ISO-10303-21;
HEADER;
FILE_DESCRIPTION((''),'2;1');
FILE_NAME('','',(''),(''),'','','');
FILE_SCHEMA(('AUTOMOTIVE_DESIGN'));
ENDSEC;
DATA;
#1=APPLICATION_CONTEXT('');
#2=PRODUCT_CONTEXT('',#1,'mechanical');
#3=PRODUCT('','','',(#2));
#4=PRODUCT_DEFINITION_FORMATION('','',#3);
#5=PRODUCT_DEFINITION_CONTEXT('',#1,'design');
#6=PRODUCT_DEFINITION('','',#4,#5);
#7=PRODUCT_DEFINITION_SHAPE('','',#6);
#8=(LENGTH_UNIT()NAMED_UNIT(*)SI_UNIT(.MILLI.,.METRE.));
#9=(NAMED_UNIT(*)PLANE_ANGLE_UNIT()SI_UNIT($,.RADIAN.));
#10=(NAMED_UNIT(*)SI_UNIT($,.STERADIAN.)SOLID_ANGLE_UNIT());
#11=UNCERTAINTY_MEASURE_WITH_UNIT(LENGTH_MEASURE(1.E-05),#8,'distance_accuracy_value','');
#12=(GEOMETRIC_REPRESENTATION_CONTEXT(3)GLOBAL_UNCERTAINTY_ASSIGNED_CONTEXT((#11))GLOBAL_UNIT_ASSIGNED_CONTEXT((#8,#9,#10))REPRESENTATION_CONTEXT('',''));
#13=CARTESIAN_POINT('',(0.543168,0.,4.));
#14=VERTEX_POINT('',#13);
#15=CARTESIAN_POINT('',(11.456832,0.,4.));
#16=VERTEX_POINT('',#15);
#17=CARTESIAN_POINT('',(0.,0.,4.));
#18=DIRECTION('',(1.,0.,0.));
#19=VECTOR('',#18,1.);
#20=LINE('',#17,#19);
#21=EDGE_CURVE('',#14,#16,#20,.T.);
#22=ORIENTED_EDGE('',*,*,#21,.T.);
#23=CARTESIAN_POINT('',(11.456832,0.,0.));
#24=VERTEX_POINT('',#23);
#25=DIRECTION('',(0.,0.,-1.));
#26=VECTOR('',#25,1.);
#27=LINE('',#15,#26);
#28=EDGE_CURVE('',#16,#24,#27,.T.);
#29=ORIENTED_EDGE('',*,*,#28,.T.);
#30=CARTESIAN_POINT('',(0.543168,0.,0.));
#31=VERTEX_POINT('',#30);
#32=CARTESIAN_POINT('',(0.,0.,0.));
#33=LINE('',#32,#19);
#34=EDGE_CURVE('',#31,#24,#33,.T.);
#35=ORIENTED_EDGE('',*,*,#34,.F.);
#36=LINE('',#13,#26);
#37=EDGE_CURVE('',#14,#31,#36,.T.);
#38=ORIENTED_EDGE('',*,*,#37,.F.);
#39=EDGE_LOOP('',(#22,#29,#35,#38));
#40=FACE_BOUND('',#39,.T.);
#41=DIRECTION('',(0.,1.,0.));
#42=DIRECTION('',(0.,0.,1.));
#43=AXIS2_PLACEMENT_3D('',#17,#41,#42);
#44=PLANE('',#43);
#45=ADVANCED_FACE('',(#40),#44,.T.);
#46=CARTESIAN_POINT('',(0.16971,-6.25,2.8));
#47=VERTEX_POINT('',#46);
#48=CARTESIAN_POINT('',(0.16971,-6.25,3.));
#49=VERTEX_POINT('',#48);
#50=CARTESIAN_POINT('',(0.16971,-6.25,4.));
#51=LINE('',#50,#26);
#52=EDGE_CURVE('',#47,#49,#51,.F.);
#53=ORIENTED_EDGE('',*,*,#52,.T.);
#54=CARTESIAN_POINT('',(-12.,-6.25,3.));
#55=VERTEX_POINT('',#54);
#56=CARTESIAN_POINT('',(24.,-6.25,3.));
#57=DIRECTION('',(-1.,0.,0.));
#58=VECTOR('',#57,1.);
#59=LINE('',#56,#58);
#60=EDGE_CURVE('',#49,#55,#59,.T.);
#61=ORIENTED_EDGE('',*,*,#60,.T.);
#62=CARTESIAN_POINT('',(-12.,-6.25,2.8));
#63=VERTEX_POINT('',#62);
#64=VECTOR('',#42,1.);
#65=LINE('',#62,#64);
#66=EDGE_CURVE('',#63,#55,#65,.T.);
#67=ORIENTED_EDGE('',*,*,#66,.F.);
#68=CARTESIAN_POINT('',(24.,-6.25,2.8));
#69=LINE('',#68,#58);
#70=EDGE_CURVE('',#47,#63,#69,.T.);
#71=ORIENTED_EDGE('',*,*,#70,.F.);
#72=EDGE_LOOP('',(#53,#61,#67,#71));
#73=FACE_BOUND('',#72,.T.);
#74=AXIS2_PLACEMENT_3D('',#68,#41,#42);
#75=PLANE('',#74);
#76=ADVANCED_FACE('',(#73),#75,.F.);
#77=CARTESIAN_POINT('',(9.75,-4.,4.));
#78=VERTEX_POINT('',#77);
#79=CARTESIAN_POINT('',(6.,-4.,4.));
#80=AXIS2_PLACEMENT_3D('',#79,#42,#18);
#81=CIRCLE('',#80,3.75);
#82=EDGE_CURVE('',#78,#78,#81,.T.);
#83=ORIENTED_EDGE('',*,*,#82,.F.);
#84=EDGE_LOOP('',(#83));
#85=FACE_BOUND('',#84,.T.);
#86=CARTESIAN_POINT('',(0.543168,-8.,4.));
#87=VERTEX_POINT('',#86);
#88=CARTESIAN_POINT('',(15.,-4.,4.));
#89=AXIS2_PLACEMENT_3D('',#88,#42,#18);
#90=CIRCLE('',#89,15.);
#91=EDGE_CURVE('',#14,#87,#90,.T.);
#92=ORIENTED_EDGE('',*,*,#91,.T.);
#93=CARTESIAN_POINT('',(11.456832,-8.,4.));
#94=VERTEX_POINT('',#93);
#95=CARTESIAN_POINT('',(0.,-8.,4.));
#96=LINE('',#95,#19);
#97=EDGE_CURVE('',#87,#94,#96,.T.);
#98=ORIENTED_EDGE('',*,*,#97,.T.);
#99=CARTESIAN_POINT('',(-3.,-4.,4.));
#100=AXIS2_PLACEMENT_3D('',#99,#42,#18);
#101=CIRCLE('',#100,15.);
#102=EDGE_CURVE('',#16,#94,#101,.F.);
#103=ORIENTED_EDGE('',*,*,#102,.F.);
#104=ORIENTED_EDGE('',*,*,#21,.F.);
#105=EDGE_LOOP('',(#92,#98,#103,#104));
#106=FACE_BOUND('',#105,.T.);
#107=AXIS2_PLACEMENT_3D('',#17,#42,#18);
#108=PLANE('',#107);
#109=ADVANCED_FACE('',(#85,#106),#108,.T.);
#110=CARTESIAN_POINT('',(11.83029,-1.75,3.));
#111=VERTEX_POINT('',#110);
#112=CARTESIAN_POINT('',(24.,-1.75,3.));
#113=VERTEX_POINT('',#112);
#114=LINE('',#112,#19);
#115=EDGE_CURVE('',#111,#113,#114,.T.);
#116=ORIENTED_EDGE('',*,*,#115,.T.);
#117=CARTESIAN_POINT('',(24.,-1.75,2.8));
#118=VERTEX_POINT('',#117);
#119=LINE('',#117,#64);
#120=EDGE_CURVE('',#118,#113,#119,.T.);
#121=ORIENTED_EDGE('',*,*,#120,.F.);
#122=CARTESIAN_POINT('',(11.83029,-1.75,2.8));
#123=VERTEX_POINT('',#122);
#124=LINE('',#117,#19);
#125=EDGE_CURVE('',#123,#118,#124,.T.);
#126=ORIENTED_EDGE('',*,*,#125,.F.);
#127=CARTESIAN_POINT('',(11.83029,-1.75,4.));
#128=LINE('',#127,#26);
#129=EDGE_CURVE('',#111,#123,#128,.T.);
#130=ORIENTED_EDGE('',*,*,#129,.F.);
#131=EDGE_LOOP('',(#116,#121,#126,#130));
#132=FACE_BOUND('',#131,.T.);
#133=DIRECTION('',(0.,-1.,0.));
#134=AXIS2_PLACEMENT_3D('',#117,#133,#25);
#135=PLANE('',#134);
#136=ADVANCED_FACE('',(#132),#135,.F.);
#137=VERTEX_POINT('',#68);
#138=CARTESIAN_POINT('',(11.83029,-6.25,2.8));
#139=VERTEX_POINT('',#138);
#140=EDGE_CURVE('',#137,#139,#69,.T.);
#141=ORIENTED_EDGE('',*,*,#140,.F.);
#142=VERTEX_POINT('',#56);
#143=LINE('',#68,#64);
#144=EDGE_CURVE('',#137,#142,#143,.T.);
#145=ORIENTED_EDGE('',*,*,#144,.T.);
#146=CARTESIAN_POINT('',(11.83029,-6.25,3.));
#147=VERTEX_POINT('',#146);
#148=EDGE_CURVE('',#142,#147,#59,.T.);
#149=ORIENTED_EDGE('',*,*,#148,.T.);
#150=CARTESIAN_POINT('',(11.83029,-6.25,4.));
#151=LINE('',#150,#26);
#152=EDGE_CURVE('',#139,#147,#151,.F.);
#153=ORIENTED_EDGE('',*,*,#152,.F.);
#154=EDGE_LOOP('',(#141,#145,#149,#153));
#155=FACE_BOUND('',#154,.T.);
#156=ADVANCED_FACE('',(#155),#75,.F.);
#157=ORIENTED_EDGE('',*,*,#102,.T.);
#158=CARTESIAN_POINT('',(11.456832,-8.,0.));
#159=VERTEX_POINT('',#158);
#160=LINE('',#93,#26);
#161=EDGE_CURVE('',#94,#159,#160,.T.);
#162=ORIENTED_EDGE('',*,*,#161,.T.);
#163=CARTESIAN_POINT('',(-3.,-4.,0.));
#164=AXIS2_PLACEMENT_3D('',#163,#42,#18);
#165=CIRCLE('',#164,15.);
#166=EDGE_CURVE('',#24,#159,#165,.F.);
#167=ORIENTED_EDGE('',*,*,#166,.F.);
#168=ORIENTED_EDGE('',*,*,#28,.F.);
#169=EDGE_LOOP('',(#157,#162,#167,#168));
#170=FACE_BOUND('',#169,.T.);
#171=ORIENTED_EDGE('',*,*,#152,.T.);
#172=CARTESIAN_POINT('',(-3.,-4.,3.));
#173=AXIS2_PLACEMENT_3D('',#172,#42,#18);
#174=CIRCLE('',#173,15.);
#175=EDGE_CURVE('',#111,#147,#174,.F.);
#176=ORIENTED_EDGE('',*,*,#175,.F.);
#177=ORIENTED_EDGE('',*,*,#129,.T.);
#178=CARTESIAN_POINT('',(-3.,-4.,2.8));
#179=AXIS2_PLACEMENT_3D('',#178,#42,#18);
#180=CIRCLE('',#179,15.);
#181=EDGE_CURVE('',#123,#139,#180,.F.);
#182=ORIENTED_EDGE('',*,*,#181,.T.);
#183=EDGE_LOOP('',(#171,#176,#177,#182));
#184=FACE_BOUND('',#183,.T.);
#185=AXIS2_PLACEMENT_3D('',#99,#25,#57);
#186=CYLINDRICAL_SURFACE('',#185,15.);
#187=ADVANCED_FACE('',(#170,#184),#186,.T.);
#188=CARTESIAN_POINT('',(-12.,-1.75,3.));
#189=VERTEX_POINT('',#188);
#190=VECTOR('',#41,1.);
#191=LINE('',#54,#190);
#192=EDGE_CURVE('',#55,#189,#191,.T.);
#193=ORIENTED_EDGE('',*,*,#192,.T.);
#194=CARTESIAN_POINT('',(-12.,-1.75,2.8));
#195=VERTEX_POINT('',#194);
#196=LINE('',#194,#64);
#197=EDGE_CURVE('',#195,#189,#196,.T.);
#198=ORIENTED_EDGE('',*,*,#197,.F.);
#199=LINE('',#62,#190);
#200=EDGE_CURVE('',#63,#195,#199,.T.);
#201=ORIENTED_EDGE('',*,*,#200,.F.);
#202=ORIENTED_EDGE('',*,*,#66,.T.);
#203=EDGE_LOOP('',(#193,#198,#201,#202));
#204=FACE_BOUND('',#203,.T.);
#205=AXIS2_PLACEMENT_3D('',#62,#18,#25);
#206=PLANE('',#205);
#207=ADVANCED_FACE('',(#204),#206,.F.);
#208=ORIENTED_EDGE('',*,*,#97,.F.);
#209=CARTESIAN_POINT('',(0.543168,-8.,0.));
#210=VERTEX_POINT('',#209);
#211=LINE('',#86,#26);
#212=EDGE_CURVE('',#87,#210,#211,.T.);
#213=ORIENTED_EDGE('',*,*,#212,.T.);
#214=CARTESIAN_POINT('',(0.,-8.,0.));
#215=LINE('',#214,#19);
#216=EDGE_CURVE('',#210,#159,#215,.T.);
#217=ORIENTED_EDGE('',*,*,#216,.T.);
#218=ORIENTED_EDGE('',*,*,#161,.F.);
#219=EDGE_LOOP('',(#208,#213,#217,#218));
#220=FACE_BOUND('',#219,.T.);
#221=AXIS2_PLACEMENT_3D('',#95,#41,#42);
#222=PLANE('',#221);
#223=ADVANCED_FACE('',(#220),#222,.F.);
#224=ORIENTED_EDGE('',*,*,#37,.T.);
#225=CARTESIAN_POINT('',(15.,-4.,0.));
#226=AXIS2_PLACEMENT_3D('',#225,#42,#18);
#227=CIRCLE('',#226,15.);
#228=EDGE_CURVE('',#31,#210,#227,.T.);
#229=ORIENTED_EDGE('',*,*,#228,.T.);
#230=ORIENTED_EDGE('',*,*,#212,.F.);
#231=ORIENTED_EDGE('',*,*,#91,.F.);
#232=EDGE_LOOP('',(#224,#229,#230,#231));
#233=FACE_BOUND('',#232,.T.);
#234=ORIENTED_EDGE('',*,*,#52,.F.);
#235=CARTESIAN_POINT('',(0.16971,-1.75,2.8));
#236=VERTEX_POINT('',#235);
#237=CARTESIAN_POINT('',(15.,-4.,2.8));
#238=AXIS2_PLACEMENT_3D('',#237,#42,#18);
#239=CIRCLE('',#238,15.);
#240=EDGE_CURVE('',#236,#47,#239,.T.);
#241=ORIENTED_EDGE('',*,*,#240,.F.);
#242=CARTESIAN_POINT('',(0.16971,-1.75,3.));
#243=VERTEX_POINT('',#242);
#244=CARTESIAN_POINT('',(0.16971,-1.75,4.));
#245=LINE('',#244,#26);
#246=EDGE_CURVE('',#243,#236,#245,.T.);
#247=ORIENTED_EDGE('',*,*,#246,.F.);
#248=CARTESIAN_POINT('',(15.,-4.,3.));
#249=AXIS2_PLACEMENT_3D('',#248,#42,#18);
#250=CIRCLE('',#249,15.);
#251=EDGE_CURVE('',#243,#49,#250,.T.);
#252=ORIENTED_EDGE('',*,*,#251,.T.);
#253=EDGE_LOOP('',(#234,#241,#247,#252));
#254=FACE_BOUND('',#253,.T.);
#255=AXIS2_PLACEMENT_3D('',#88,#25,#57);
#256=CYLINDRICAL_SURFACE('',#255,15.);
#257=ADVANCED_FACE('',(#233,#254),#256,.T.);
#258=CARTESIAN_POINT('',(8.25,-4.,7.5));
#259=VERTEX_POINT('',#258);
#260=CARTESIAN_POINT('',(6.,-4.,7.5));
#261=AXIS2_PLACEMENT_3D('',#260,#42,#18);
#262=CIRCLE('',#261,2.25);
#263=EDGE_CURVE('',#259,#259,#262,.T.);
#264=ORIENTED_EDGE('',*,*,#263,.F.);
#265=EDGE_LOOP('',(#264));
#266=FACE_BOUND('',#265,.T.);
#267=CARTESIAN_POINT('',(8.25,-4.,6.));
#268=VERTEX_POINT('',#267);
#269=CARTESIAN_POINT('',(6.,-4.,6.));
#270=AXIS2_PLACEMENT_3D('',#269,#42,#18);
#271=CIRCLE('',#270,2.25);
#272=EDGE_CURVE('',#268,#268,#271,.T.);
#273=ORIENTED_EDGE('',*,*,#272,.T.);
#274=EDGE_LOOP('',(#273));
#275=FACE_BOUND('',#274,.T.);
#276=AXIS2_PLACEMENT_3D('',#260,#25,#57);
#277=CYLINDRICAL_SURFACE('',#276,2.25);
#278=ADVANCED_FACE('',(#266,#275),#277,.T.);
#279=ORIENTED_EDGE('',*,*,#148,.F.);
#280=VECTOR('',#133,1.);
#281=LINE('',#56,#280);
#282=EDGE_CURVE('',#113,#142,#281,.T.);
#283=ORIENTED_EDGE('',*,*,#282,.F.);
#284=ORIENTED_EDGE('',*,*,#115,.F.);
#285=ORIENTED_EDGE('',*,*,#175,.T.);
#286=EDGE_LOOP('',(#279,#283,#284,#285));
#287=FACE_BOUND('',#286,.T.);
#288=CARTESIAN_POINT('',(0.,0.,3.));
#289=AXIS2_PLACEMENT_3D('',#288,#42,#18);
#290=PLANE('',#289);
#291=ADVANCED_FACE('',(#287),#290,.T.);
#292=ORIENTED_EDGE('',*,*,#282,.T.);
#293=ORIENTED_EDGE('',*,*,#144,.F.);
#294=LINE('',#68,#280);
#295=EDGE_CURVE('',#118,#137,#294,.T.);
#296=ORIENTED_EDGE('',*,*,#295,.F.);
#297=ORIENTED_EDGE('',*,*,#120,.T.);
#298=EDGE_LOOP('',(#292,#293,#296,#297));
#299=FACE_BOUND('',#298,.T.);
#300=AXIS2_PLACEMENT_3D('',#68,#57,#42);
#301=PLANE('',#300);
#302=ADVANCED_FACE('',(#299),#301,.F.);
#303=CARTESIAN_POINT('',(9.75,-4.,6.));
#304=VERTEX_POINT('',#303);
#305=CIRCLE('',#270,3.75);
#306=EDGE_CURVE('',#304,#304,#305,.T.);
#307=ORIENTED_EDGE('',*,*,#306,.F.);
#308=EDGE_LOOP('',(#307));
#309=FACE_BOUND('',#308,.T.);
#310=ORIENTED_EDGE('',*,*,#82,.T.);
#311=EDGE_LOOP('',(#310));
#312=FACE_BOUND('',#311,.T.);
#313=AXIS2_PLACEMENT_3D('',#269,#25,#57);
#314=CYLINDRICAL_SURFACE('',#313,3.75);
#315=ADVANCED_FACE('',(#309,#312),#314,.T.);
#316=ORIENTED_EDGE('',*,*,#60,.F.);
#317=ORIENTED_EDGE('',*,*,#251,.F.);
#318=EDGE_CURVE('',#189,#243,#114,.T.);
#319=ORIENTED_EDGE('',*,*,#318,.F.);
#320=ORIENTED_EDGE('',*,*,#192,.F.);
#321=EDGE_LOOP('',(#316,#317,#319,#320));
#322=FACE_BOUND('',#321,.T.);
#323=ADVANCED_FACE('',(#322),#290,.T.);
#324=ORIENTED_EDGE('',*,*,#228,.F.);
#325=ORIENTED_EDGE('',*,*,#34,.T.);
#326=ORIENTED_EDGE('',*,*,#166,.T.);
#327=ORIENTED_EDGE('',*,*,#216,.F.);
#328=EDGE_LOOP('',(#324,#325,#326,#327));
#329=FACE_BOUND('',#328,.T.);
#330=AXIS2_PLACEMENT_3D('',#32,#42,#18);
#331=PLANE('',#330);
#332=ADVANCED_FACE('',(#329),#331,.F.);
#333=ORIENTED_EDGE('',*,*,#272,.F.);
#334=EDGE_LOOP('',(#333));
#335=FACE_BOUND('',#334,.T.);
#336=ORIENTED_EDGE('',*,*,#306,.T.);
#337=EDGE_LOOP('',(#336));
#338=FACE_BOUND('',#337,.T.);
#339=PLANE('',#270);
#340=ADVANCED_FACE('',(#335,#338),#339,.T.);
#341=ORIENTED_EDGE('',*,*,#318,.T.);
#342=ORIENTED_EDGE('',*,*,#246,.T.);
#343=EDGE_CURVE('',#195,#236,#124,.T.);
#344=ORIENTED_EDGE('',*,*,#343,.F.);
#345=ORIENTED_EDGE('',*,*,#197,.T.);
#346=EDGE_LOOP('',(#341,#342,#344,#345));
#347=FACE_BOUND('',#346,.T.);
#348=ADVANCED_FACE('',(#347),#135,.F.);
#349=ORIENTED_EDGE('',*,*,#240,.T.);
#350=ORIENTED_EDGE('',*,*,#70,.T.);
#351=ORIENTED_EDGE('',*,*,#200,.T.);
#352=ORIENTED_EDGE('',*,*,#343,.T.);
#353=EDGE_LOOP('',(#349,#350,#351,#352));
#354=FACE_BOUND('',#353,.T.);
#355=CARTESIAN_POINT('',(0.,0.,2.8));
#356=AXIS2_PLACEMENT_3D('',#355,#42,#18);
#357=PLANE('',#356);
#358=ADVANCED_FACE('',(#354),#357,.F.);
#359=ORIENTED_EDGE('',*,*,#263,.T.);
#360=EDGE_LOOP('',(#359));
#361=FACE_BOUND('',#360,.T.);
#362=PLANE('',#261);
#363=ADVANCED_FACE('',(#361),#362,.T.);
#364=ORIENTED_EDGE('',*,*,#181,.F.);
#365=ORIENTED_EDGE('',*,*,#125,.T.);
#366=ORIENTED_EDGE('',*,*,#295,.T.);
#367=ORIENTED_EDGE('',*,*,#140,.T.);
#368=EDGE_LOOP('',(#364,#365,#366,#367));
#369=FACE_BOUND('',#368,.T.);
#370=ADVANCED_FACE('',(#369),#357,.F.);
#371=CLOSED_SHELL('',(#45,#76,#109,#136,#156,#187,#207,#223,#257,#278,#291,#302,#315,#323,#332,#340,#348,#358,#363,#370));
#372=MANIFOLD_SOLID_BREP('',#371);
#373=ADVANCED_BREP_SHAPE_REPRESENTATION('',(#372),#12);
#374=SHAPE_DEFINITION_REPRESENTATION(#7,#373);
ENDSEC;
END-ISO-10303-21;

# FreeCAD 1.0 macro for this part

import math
import FreeCAD as App
import Part
import Sketcher


def add_polygon(sketch, points):
    """Adds a closed chain of lines whose ends are joined by coincident constraints."""
    first, n = sketch.GeometryCount, len(points)
    for a, b in zip(points, points[1:] + points[:1]):
        sketch.addGeometry(Part.LineSegment(App.Vector(*a, 0), App.Vector(*b, 0)), False)
    for i in range(n):
        sketch.addConstraint(Sketcher.Constraint("Coincident", first + i, 2, first + (i + 1) % n, 1))

doc = App.newDocument("Part")
body = doc.addObject("PartDesign::Body", "Body")

# Sketch on XY plane
sketch1 = body.newObject("Sketcher::SketchObject", "Sketch")
sketch1.AttachmentSupport = (doc.getObject("XY_Plane"), [""])
sketch1.MapMode = "FlatFace"
sketch1.addGeometry([
    Part.LineSegment(App.Vector(11.5, 0, 0), App.Vector(0.5, 0, 0)),  # 0
    Part.ArcOfCircle(Part.Circle(App.Vector(15, -4, 0), App.Vector(0, 0, 1), 15), math.radians(164.53), math.radians(180)),  # 1
    Part.ArcOfCircle(Part.Circle(App.Vector(15, -4, 0), App.Vector(0, 0, 1), 15), math.radians(-180), math.radians(-164.53)),  # 2
    Part.LineSegment(App.Vector(0.5, -8, 0), App.Vector(11.5, -8, 0)),  # 3
    Part.ArcOfCircle(Part.Circle(App.Vector(-3, -4, 0), App.Vector(0, 0, 1), 15), math.radians(-15.47), math.radians(0)),  # 4
    Part.ArcOfCircle(Part.Circle(App.Vector(-3, -4, 0), App.Vector(0, 0, 1), 15), math.radians(0), math.radians(15.47)),  # 5
], False)
sketch1.addConstraint([
    Sketcher.Constraint("Coincident", 0, 2, 1, 1),
    Sketcher.Constraint("Tangent", 1, 2, 2, 1),
    Sketcher.Constraint("Coincident", 2, 2, 3, 1),
    Sketcher.Constraint("Coincident", 3, 2, 4, 1),
    Sketcher.Constraint("Tangent", 4, 2, 5, 1),
    Sketcher.Constraint("Coincident", 5, 2, 0, 1),
    Sketcher.Constraint("Horizontal", 0),
    Sketcher.Constraint("Horizontal", 3),
    Sketcher.Constraint("Equal", 1, 2),
    Sketcher.Constraint("Equal", 2, 4),
    Sketcher.Constraint("Equal", 4, 5),
    Sketcher.Constraint("PointOnObject", 0, 2, -1),
    Sketcher.Constraint("PointOnObject", 1, 2, -2),
    Sketcher.Constraint("Horizontal", 2, 3, 4, 3),
    Sketcher.Constraint("Horizontal", 5, 3, 1, 2),
    Sketcher.Constraint("Horizontal", 1, 2, 4, 2),
    Sketcher.Constraint("Vertical", 0, 2, 2, 2),
    Sketcher.Constraint("Radius", 1, 15.0),
    Sketcher.Constraint("DistanceY", 1, 3, -1, 1, 4.0),
    Sketcher.Constraint("DistanceX", 4, 3, -1, 1, 3.0),
])
pad1 = body.newObject("PartDesign::Pad", "Pad")
pad1.Profile = sketch1
pad1.Length = 4

# Sketch on XY plane
sketch2 = body.newObject("Sketcher::SketchObject", "Sketch001")
sketch2.AttachmentSupport = (doc.getObject("XY_Plane"), [""])
sketch2.MapMode = "FlatFace"
sketch2.AttachmentOffset = App.Placement(App.Vector(0, 0, 4), App.Rotation())
sketch2.addGeometry(Part.Circle(App.Vector(6, -4, 0), App.Vector(0, 0, 1), 3.8), False)
sketch2.addConstraint([
    Sketcher.Constraint("Diameter", 0, 7.5),
    Sketcher.Constraint("DistanceX", -1, 1, 0, 3, 6.0),
    Sketcher.Constraint("DistanceY", 0, 3, -1, 1, 4.0),
])
pad2 = body.newObject("PartDesign::Pad", "Pad001")
pad2.Profile = sketch2
pad2.Length = 2

# Sketch on XY plane
sketch3 = body.newObject("Sketcher::SketchObject", "Sketch002")
sketch3.AttachmentSupport = (doc.getObject("XY_Plane"), [""])
sketch3.MapMode = "FlatFace"
sketch3.AttachmentOffset = App.Placement(App.Vector(0, 0, 6), App.Rotation())
sketch3.addGeometry(Part.Circle(App.Vector(6, -4, 0), App.Vector(0, 0, 1), 2.2), False)
sketch3.addConstraint([
    Sketcher.Constraint("Diameter", 0, 4.5),
    Sketcher.Constraint("DistanceX", -1, 1, 0, 3, 6.0),
    Sketcher.Constraint("DistanceY", 0, 3, -1, 1, 4.0),
])
pad3 = body.newObject("PartDesign::Pad", "Pad002")
pad3.Profile = sketch3
pad3.Length = 1.5

# Sketch on XY plane
sketch4 = body.newObject("Sketcher::SketchObject", "Sketch003")
sketch4.AttachmentSupport = (doc.getObject("XY_Plane"), [""])
sketch4.MapMode = "FlatFace"
sketch4.AttachmentOffset = App.Placement(App.Vector(0, 0, 3), App.Rotation())
add_polygon(sketch4, [(24, -1.8), (24, -6.2), (-12, -6.2), (-12, -1.8)])  # lines 0-3
sketch4.addConstraint([
    Sketcher.Constraint("Vertical", 0),
    Sketcher.Constraint("Horizontal", 1),
    Sketcher.Constraint("Vertical", 2),
    Sketcher.Constraint("Horizontal", 3),
    Sketcher.Constraint("DistanceX", 1, 2, 1, 1, 36.0),
    Sketcher.Constraint("DistanceY", 0, 2, 0, 1, 4.5),
    Sketcher.Constraint("DistanceX", -1, 1, 0, 2, 24.0),
    Sketcher.Constraint("DistanceY", 0, 2, -1, 1, 6.25),
])
pad4 = body.newObject("PartDesign::Pad", "Pad003")
pad4.Profile = sketch4
pad4.Length = 0.2
pad4.Reversed = True

doc.recompute()
